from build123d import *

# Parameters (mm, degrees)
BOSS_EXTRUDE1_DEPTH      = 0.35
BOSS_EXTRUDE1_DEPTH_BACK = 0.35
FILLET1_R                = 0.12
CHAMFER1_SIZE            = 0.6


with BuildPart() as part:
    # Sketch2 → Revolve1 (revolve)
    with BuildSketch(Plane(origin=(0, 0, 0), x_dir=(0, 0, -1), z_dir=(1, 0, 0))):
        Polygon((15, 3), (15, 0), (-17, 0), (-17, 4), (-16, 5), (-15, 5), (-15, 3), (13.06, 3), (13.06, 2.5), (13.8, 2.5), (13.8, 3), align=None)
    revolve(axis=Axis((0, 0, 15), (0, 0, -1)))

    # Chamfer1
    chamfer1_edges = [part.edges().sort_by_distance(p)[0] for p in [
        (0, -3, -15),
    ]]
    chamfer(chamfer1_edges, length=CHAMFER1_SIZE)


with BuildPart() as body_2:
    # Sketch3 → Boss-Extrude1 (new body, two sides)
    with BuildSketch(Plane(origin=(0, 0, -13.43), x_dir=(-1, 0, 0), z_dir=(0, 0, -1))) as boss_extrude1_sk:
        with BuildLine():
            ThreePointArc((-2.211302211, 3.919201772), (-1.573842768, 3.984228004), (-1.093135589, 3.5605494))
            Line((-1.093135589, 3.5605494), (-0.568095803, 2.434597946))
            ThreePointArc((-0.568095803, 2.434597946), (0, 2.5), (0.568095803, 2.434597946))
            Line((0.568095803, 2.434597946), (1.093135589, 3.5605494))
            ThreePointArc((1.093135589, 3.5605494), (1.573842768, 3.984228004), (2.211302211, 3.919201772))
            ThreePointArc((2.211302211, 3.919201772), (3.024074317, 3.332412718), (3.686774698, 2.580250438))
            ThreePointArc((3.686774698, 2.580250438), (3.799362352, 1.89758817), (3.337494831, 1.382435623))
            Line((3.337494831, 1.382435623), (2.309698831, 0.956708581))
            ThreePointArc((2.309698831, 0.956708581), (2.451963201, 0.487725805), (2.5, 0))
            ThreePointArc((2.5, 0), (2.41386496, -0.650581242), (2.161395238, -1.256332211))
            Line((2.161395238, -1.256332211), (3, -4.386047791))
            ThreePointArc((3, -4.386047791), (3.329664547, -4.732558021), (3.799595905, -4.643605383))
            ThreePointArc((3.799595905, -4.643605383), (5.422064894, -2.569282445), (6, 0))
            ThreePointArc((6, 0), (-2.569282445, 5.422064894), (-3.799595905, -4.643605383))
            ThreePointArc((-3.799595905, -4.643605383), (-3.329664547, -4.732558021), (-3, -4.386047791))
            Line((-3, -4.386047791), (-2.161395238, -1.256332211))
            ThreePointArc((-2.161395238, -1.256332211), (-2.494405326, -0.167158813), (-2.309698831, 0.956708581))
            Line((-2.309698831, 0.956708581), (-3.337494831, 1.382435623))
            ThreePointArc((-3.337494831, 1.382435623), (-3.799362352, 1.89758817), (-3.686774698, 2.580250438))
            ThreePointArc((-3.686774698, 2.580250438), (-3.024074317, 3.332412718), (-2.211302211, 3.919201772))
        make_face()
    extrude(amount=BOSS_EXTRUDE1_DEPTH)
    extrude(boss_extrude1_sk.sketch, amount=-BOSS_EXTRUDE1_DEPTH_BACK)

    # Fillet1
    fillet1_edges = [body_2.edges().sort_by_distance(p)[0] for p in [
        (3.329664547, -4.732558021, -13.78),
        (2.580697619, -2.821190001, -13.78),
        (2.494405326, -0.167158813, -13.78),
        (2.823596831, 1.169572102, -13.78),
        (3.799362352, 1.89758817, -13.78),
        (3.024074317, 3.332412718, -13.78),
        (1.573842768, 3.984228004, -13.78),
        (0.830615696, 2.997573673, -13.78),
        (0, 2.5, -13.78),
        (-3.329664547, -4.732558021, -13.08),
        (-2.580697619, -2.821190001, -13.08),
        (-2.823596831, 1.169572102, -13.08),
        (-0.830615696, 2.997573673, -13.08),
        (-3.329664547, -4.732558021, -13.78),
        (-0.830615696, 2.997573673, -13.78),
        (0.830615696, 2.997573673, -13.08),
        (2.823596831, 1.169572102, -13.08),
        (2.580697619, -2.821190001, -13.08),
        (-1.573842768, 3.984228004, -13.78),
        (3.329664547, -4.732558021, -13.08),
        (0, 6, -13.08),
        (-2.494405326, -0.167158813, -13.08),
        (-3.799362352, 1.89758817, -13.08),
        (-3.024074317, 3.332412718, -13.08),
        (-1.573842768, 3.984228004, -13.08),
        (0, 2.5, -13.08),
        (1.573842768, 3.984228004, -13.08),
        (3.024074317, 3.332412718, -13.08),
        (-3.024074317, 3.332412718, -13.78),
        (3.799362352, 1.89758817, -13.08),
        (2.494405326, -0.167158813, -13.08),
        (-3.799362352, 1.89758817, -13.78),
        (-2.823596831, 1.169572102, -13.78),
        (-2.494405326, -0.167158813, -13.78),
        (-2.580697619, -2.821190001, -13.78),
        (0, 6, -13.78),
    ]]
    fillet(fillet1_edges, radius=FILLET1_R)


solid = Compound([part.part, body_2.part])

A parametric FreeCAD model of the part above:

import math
import FreeCAD as App
import Part
import Sketcher
from FreeCAD import Vector
Q = App.Units.Quantity


def edges_at(feature, points):
    """Names of the edges that pass closest to the given points."""
    edges = feature.Shape.Edges
    near = lambda p: min(range(len(edges)), key=lambda i: edges[i].distToShape(Part.Vertex(*p))[0])
    return sorted({f"Edge{near(p) + 1}" for p in points})


def add_polygon(sketch, points):
    """Adds a closed chain of lines whose ends are joined by coincident constraints."""
    first, n = sketch.GeometryCount, len(points)
    for a, b in zip(points, points[1:] + points[:1]):
        sketch.addGeometry(Part.LineSegment(App.Vector(*a, 0), App.Vector(*b, 0)), False)
    for i in range(n):
        sketch.addConstraint(Sketcher.Constraint("Coincident", first + i, 2, first + (i + 1) % n, 1))

doc = App.newDocument("Part")
body = doc.addObject("PartDesign::Body", "Body")

sketch1 = body.newObject("Sketcher::SketchObject", "Sketch")
sketch1.AttachmentSupport = (doc.getObject("YZ_Plane"), [""])
sketch1.MapMode = "FlatFace"
add_polygon(sketch1, [(0, -15), (3, -15), (3, -13.8), (2.5, -13.8), (2.5, -13.06), (3, -13.06), (3, 15), (5, 15), (5, 16), (4, 17), (0, 17)])
sketch1.addConstraint([
    Sketcher.Constraint("Horizontal", 0),
    Sketcher.Constraint("Vertical", 1),
    Sketcher.Constraint("Horizontal", 2),
    Sketcher.Constraint("Vertical", 3),
    Sketcher.Constraint("Horizontal", 4),
    Sketcher.Constraint("Vertical", 5),
    Sketcher.Constraint("Horizontal", 6),
    Sketcher.Constraint("Vertical", 7),
    Sketcher.Constraint("Horizontal", 9),
    Sketcher.Constraint("Vertical", 10),
    Sketcher.Constraint("Symmetric", 0, 2, 5, 2, -1),
    Sketcher.Constraint("PointOnObject", 9, 2, -2),
    Sketcher.Constraint("DistanceX", 0, 1, 0, 2, Q("3 mm")),
    Sketcher.Constraint("DistanceX", 6, 1, 6, 2, Q("2 mm")),
    Sketcher.Constraint("DistanceX", 9, 2, 9, 1, Q("4 mm")),
    Sketcher.Constraint("DistanceY", 7, 1, 7, 2, Q("1 mm")),
    Sketcher.Constraint("DistanceY", 10, 2, 10, 1, Q("32 mm")),
    Sketcher.Constraint("Angle", 8, Q("135 deg")),
    Sketcher.Constraint("DistanceX", 2, 2, 2, 1, Q("0.5 mm")),
    Sketcher.Constraint("DistanceY", 1, 1, 1, 2, Q("1.2 mm")),
    Sketcher.Constraint("DistanceY", 3, 1, 3, 2, Q("0.74 mm")),
])
revolution = body.newObject("PartDesign::Revolution", "Revolution")
revolution.Profile = sketch1
revolution.ReferenceAxis = (sketch1, ["V_Axis"])
revolution.Angle = 360
doc.recompute()

chamfer = body.newObject("PartDesign::Chamfer", "Chamfer")
chamfer.Base = (revolution, edges_at(revolution, [(0, -3, -15)]))
chamfer.Size = 0.6
body2 = doc.addObject("PartDesign::Body", "Body001")

sketch2 = body2.newObject("Sketcher::SketchObject", "Sketch001")
sketch2.AttachmentSupport = (doc.getObject("XY_Plane001"), [""])
sketch2.MapMode = "FlatFace"
sketch2.AttachmentOffset = App.Placement(Vector(0, 0, -13.43), App.Rotation())
sketch2.addGeometry([
    Part.ArcOfCircle(Part.Circle(Vector(1.818182, 3.222455, 0), Vector(0, 0, 1), 0.8), math.radians(60.567327), math.radians(155)),
    Part.LineSegment(Vector(1.093136, 3.560549, 0), Vector(0.568096, 2.434598, 0)),
    Part.ArcOfCircle(Part.Circle(Vector(0, 0, 0), Vector(0, 0, 1), 2.5), math.radians(76.865466), math.radians(103.134534)),
    Part.LineSegment(Vector(-0.568096, 2.434598, 0), Vector(-1.093136, 3.560549, 0)),
    Part.ArcOfCircle(Part.Circle(Vector(-1.818182, 3.222455, 0), Vector(0, 0, 1), 0.8), math.radians(25), math.radians(119.432673)),
    Part.ArcOfCircle(Part.Circle(Vector(0, 0, 0), Vector(0, 0, 1), 4.5), math.radians(119.432673), math.radians(145.01311)),
    Part.ArcOfCircle(Part.Circle(Vector(-3.031348, 2.121539, 0), Vector(0, 0, 1), 0.8), math.radians(145.01311), math.radians(247.5)),
    Part.LineSegment(Vector(-3.337495, 1.382436, 0), Vector(-2.309699, 0.956709, 0)),
    Part.ArcOfCircle(Part.Circle(Vector(0, 0, 0), Vector(0, 0, 1), 2.5), math.radians(157.5), math.radians(180)),
    Part.ArcOfCircle(Part.Circle(Vector(0, 0, 0), Vector(0, 0, 1), 2.5), math.radians(-180), math.radians(-149.832284)),
    Part.LineSegment(Vector(-2.161395, -1.256332, 0), Vector(-3, -4.386048, 0)),
    Part.ArcOfCircle(Part.Circle(Vector(-3.482963, -4.256638, 0), Vector(0, 0, 1), 0.5), math.radians(-129.291494), math.radians(-15)),
    Part.ArcOfCircle(Part.Circle(Vector(0, 0, 0), Vector(0, 0, 1), 6), math.radians(-180), math.radians(-129.291494)),
    Part.ArcOfCircle(Part.Circle(Vector(0, 0, 0), Vector(0, 0, 1), 6), math.radians(-50.708506), math.radians(180)),
    Part.ArcOfCircle(Part.Circle(Vector(3.482963, -4.256638, 0), Vector(0, 0, 1), 0.5), math.radians(-165), math.radians(-50.708506)),
    Part.LineSegment(Vector(3, -4.386048, 0), Vector(2.161395, -1.256332, 0)),
    Part.ArcOfCircle(Part.Circle(Vector(0, 0, 0), Vector(0, 0, 1), 2.5), math.radians(-30.167716), math.radians(22.5)),
    Part.LineSegment(Vector(2.309699, 0.956709, 0), Vector(3.337495, 1.382436, 0)),
    Part.ArcOfCircle(Part.Circle(Vector(3.031348, 2.121539, 0), Vector(0, 0, 1), 0.8), math.radians(-67.5), math.radians(34.98689)),
    Part.ArcOfCircle(Part.Circle(Vector(0, 0, 0), Vector(0, 0, 1), 4.5), math.radians(34.98689), math.radians(60.567327)),
], False)
sketch2.addConstraint([
    Sketcher.Constraint("Tangent", 0, 2, 1, 1),
    Sketcher.Constraint("Coincident", 1, 2, 2, 1),
    Sketcher.Constraint("Coincident", 2, 2, 3, 1),
    Sketcher.Constraint("Tangent", 3, 2, 4, 1),
    Sketcher.Constraint("Tangent", 4, 2, 5, 1),
    Sketcher.Constraint("Tangent", 5, 2, 6, 1),
    Sketcher.Constraint("Tangent", 6, 2, 7, 1),
    Sketcher.Constraint("Coincident", 7, 2, 8, 1),
    Sketcher.Constraint("Tangent", 8, 2, 9, 1),
    Sketcher.Constraint("Coincident", 9, 2, 10, 1),
    Sketcher.Constraint("Tangent", 10, 2, 11, 2),
    Sketcher.Constraint("Tangent", 11, 1, 12, 2),
    Sketcher.Constraint("Tangent", 12, 1, 13, 2),
    Sketcher.Constraint("Tangent", 13, 1, 14, 2),
    Sketcher.Constraint("Tangent", 14, 1, 15, 1),
    Sketcher.Constraint("Coincident", 15, 2, 16, 1),
    Sketcher.Constraint("Coincident", 16, 2, 17, 1),
    Sketcher.Constraint("Tangent", 17, 2, 18, 1),
    Sketcher.Constraint("Tangent", 18, 2, 19, 1),
    Sketcher.Constraint("Tangent", 19, 2, 0, 1),
    Sketcher.Constraint("Coincident", 2, 3, -1, 1),
    Sketcher.Constraint("Coincident", 5, 3, -1, 1),
    Sketcher.Constraint("Coincident", 8, 3, -1, 1),
    Sketcher.Constraint("Coincident", 12, 3, -1, 1),
    Sketcher.Constraint("Coincident", 16, 3, -1, 1),
    Sketcher.Constraint("Coincident", 19, 3, -1, 1),
    Sketcher.Constraint("Equal", 0, 4),
    Sketcher.Constraint("Equal", 4, 6),
    Sketcher.Constraint("Equal", 2, 8),
    Sketcher.Constraint("Equal", 8, 9),
    Sketcher.Constraint("Equal", 12, 13),
    Sketcher.Constraint("Equal", 11, 14),
    Sketcher.Constraint("Equal", 9, 16),
    Sketcher.Constraint("Equal", 6, 18),
    Sketcher.Constraint("Equal", 5, 19),
    Sketcher.Constraint("Symmetric", 0, 2, 3, 2, -2),
    Sketcher.Constraint("Symmetric", 10, 2, 14, 1, -2),
    Sketcher.Constraint("Symmetric", 6, 2, 17, 2, -2),
    Sketcher.Constraint("PointOnObject", 8, 2, -1),
    Sketcher.Constraint("PointOnObject", 12, 1, -1),
    Sketcher.Constraint("Radius", 12, Q("6 mm")),
    Sketcher.Constraint("Radius", 0, Q("0.8 mm")),
    Sketcher.Constraint("Radius", 2, Q("2.5 mm")),
    Sketcher.Constraint("Radius", 5, Q("4.5 mm")),
    Sketcher.Constraint("Radius", 11, Q("0.5 mm")),
    Sketcher.Constraint("Angle", 1, Q("-115 deg")),
    Sketcher.Constraint("Angle", 10, Q("-105 deg")),
    Sketcher.Constraint("DistanceX", 10, 2, -1, 1, Q("3 mm")),
    Sketcher.Constraint("Angle", 7, Q("-22.5 deg")),
    Sketcher.Constraint("DistanceY", -1, 1, 4, 2, Q("3.919202 mm")),
    Sketcher.Constraint("DistanceX", 7, 2, -1, 1, Q("2.309699 mm")),
])
pad1 = body2.newObject("PartDesign::Pad", "Pad")
pad1.Profile = sketch2
pad1.Type = "TwoLengths"
pad1.Length = 0.35
pad1.Length2 = 0.35
pad1.Reversed = True
doc.recompute()

fillet = body2.newObject("PartDesign::Fillet", "Fillet")
fillet.Base = (pad1, edges_at(pad1, [
    (3.33, -4.733, -13.78),
    (2.581, -2.821, -13.78),
    (2.494, -0.167, -13.78),
    (2.824, 1.17, -13.78),
    (3.799, 1.898, -13.78),
    (3.024, 3.332, -13.78),
    (1.574, 3.984, -13.78),
    (0.831, 2.998, -13.78),
    (0, 2.5, -13.78),
    (-3.33, -4.733, -13.08),
    (-2.581, -2.821, -13.08),
    (-2.824, 1.17, -13.08),
    (-0.831, 2.998, -13.08),
    (-3.33, -4.733, -13.78),
    (-0.831, 2.998, -13.78),
    (0.831, 2.998, -13.08),
    (2.824, 1.17, -13.08),
    (2.581, -2.821, -13.08),
    (-1.574, 3.984, -13.78),
    (3.33, -4.733, -13.08),
    (2.569, 5.422, -13.08),
    (-2.414, -0.651, -13.08),
    (-3.799, 1.898, -13.08),
    (-3.024, 3.332, -13.08),
    (-1.574, 3.984, -13.08),
    (0, 2.5, -13.08),
    (1.574, 3.984, -13.08),
    (3.024, 3.332, -13.08),
    (-3.024, 3.332, -13.78),
    (3.799, 1.898, -13.08),
    (2.494, -0.167, -13.08),
    (-3.799, 1.898, -13.78),
    (-2.824, 1.17, -13.78),
    (-2.414, -0.651, -13.78),
    (-2.581, -2.821, -13.78),
    (2.569, 5.422, -13.78),
]))
fillet.Radius = 0.12

doc.recompute()
